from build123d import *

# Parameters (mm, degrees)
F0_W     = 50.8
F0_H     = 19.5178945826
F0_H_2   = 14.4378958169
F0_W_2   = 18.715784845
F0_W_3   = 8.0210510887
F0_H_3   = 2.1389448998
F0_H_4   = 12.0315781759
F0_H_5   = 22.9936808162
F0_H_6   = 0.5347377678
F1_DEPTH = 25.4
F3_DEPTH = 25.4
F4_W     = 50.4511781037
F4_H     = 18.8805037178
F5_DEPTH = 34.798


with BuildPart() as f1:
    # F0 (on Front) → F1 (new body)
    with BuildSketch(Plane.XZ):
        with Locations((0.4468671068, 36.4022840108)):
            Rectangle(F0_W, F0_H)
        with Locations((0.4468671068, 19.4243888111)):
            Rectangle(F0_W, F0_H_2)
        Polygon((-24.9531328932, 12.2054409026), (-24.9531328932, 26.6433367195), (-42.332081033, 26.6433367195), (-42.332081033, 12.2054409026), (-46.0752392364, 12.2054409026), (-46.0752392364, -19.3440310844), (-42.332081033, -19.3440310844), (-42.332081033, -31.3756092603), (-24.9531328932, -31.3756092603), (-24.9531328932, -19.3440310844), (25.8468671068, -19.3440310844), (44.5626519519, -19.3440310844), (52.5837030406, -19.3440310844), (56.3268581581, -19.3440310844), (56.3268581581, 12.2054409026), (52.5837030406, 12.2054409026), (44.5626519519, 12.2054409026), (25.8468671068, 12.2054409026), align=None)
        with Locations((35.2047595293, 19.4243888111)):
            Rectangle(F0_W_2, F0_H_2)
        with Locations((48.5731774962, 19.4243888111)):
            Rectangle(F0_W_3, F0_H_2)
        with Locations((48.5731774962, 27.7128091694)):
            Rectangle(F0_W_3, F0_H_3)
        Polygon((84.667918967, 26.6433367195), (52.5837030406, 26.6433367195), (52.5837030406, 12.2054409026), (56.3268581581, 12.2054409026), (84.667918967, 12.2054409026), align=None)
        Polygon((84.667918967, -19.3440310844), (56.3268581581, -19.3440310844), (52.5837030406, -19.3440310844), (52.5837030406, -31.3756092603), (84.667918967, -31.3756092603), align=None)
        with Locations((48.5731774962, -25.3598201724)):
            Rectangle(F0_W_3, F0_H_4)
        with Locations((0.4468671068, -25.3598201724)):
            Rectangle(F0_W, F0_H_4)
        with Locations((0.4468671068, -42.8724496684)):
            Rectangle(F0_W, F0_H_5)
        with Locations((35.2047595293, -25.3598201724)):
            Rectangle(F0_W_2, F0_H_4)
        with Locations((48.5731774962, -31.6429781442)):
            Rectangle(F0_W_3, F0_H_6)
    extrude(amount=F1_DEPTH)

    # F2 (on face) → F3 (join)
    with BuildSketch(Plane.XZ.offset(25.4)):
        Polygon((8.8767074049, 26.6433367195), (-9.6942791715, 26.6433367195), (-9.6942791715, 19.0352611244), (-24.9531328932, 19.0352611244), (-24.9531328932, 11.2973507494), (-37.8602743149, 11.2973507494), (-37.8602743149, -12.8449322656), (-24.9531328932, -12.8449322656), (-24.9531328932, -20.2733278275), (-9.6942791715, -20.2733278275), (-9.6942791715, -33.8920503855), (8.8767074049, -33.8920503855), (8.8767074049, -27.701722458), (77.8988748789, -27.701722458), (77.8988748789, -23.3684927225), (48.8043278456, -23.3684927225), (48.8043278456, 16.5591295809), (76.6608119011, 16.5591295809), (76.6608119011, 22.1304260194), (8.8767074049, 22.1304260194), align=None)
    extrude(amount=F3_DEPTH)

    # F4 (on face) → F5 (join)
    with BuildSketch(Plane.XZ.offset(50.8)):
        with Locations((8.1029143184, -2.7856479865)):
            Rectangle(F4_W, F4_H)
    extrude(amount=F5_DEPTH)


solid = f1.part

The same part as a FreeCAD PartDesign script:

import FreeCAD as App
import Part
import Sketcher
from FreeCAD import Vector
Q = App.Units.Quantity

doc = App.newDocument("Part")
body = doc.addObject("PartDesign::Body", "Body")

# Sketch on XZ plane
sketch1 = body.newObject("Sketcher::SketchObject", "Sketch")
sketch1.AttachmentSupport = (doc.getObject("XZ_Plane"), [""])
sketch1.MapMode = "FlatFace"
sketch1.addGeometry([
    Part.LineSegment(Vector(-24.953133, 46.161231, 0), Vector(-24.953133, 26.643337, 0)),  # 0
    Part.LineSegment(Vector(-24.953133, 26.643337, 0), Vector(-42.332081, 26.643337, 0)),  # 1
    Part.LineSegment(Vector(-42.332081, 26.643337, 0), Vector(-42.332081, 12.205441, 0)),  # 2
    Part.LineSegment(Vector(-42.332081, 12.205441, 0), Vector(-46.075239, 12.205441, 0)),  # 3
    Part.LineSegment(Vector(-46.075239, 12.205441, 0), Vector(-46.075239, -19.344031, 0)),  # 4
    Part.LineSegment(Vector(-46.075239, -19.344031, 0), Vector(-42.332081, -19.344031, 0)),  # 5
    Part.LineSegment(Vector(-42.332081, -19.344031, 0), Vector(-42.332081, -31.375609, 0)),  # 6
    Part.LineSegment(Vector(-42.332081, -31.375609, 0), Vector(-24.953133, -31.375609, 0)),  # 7
    Part.LineSegment(Vector(-24.953133, -31.375609, 0), Vector(-24.953133, -54.36929, 0)),  # 8
    Part.LineSegment(Vector(-24.953133, -54.36929, 0), Vector(25.846867, -54.36929, 0)),  # 9
    Part.LineSegment(Vector(25.846867, -54.36929, 0), Vector(25.846867, -31.375609, 0)),  # 10
    Part.LineSegment(Vector(25.846867, -31.375609, 0), Vector(44.562652, -31.375609, 0)),  # 11
    Part.LineSegment(Vector(44.562652, -31.375609, 0), Vector(44.562652, -31.910347, 0)),  # 12
    Part.LineSegment(Vector(44.562652, -31.910347, 0), Vector(52.583703, -31.910347, 0)),  # 13
    Part.LineSegment(Vector(52.583703, -31.910347, 0), Vector(52.583703, -31.375609, 0)),  # 14
    Part.LineSegment(Vector(52.583703, -31.375609, 0), Vector(84.667919, -31.375609, 0)),  # 15
    Part.LineSegment(Vector(84.667919, -31.375609, 0), Vector(84.667919, -19.344031, 0)),  # 16
    Part.LineSegment(Vector(84.667919, -19.344031, 0), Vector(56.326858, -19.344031, 0)),  # 17
    Part.LineSegment(Vector(56.326858, -19.344031, 0), Vector(56.326858, 12.205441, 0)),  # 18
    Part.LineSegment(Vector(56.326858, 12.205441, 0), Vector(84.667919, 12.205441, 0)),  # 19
    Part.LineSegment(Vector(84.667919, 12.205441, 0), Vector(84.667919, 26.643337, 0)),  # 20
    Part.LineSegment(Vector(84.667919, 26.643337, 0), Vector(52.583703, 26.643337, 0)),  # 21
    Part.LineSegment(Vector(52.583703, 26.643337, 0), Vector(52.583703, 28.782282, 0)),  # 22
    Part.LineSegment(Vector(52.583703, 28.782282, 0), Vector(44.562652, 28.782282, 0)),  # 23
    Part.LineSegment(Vector(44.562652, 28.782282, 0), Vector(44.562652, 26.643337, 0)),  # 24
    Part.LineSegment(Vector(44.562652, 26.643337, 0), Vector(25.846867, 26.643337, 0)),  # 25
    Part.LineSegment(Vector(25.846867, 26.643337, 0), Vector(25.846867, 46.161231, 0)),  # 26
    Part.LineSegment(Vector(25.846867, 46.161231, 0), Vector(-24.953133, 46.161231, 0)),  # 27
], False)
sketch1.addConstraint([
    Sketcher.Constraint("Coincident", 0, 2, 1, 1),
    Sketcher.Constraint("Coincident", 1, 2, 2, 1),
    Sketcher.Constraint("Coincident", 2, 2, 3, 1),
    Sketcher.Constraint("Coincident", 3, 2, 4, 1),
    Sketcher.Constraint("Coincident", 4, 2, 5, 1),
    Sketcher.Constraint("Coincident", 5, 2, 6, 1),
    Sketcher.Constraint("Coincident", 6, 2, 7, 1),
    Sketcher.Constraint("Coincident", 7, 2, 8, 1),
    Sketcher.Constraint("Coincident", 8, 2, 9, 1),
    Sketcher.Constraint("Coincident", 9, 2, 10, 1),
    Sketcher.Constraint("Coincident", 10, 2, 11, 1),
    Sketcher.Constraint("Coincident", 11, 2, 12, 1),
    Sketcher.Constraint("Coincident", 12, 2, 13, 1),
    Sketcher.Constraint("Coincident", 13, 2, 14, 1),
    Sketcher.Constraint("Coincident", 14, 2, 15, 1),
    Sketcher.Constraint("Coincident", 15, 2, 16, 1),
    Sketcher.Constraint("Coincident", 16, 2, 17, 1),
    Sketcher.Constraint("Coincident", 17, 2, 18, 1),
    Sketcher.Constraint("Coincident", 18, 2, 19, 1),
    Sketcher.Constraint("Coincident", 19, 2, 20, 1),
    Sketcher.Constraint("Coincident", 20, 2, 21, 1),
    Sketcher.Constraint("Coincident", 21, 2, 22, 1),
    Sketcher.Constraint("Coincident", 22, 2, 23, 1),
    Sketcher.Constraint("Coincident", 23, 2, 24, 1),
    Sketcher.Constraint("Coincident", 24, 2, 25, 1),
    Sketcher.Constraint("Coincident", 25, 2, 26, 1),
    Sketcher.Constraint("Coincident", 26, 2, 27, 1),
    Sketcher.Constraint("Coincident", 27, 2, 0, 1),
    Sketcher.Constraint("Vertical", 0),
    Sketcher.Constraint("Horizontal", 1),
    Sketcher.Constraint("Vertical", 2),
    Sketcher.Constraint("Horizontal", 3),
    Sketcher.Constraint("Vertical", 4),
    Sketcher.Constraint("Horizontal", 5),
    Sketcher.Constraint("Vertical", 6),
    Sketcher.Constraint("Horizontal", 7),
    Sketcher.Constraint("Vertical", 8),
    Sketcher.Constraint("Horizontal", 9),
    Sketcher.Constraint("Vertical", 10),
    Sketcher.Constraint("Horizontal", 11),
    Sketcher.Constraint("Vertical", 12),
    Sketcher.Constraint("Horizontal", 13),
    Sketcher.Constraint("Vertical", 14),
    Sketcher.Constraint("Horizontal", 15),
    Sketcher.Constraint("Vertical", 16),
    Sketcher.Constraint("Horizontal", 17),
    Sketcher.Constraint("Vertical", 18),
    Sketcher.Constraint("Horizontal", 19),
    Sketcher.Constraint("Vertical", 20),
    Sketcher.Constraint("Horizontal", 21),
    Sketcher.Constraint("Vertical", 22),
    Sketcher.Constraint("Horizontal", 23),
    Sketcher.Constraint("Vertical", 24),
    Sketcher.Constraint("Horizontal", 25),
    Sketcher.Constraint("Vertical", 26),
    Sketcher.Constraint("Horizontal", 27),
    Sketcher.Constraint("Horizontal", 7, 2, 10, 2),
    Sketcher.Constraint("Horizontal", 11, 2, 14, 2),
    Sketcher.Constraint("Horizontal", 5, 2, 16, 2),
    Sketcher.Constraint("Horizontal", 3, 2, 18, 2),
    Sketcher.Constraint("Horizontal", 1, 2, 20, 2),
    Sketcher.Constraint("Horizontal", 21, 2, 24, 2),
    Sketcher.Constraint("Vertical", 2, 2, 5, 2),
    Sketcher.Constraint("Vertical", 0, 2, 7, 2),
    Sketcher.Constraint("Vertical", 16, 2, 19, 2),
    Sketcher.Constraint("Vertical", 14, 2, 21, 2),
    Sketcher.Constraint("Vertical", 12, 2, 23, 2),
    Sketcher.Constraint("Vertical", 10, 2, 25, 2),
    Sketcher.Constraint("DistanceX", 9, 1, 9, 2, Q("2 in")),
    Sketcher.Constraint("DistanceX", 1, 2, 1, 1, Q("17.378948 mm")),
    Sketcher.Constraint("DistanceX", 3, 2, 3, 1, Q("3.743158 mm")),
    Sketcher.Constraint("DistanceX", 13, 1, 13, 2, Q("8.021051 mm")),
    Sketcher.Constraint("DistanceX", 17, 2, 17, 1, Q("28.341061 mm")),
    Sketcher.Constraint("DistanceY", 4, 2, 4, 1, Q("31.549472 mm")),
    Sketcher.Constraint("DistanceY", 6, 2, 6, 1, Q("12.031578 mm")),
    Sketcher.Constraint("DistanceY", 8, 2, 8, 1, Q("22.993681 mm")),
    Sketcher.Constraint("DistanceX", 11, 1, 11, 2, Q("18.715785 mm")),
    Sketcher.Constraint("DistanceX", 15, 1, 15, 2, Q("32.084216 mm")),
    Sketcher.Constraint("DistanceY", 0, 2, 0, 1, Q("19.517895 mm")),
    Sketcher.Constraint("DistanceY", 2, 2, 2, 1, Q("14.437896 mm")),
    Sketcher.Constraint("DistanceY", 12, 2, 12, 1, Q("0.534738 mm")),
    Sketcher.Constraint("DistanceY", 22, 1, 22, 2, Q("2.138945 mm")),
    Sketcher.Constraint("DistanceX", 1, 2, -1, 1, Q("42.332081 mm")),
    Sketcher.Constraint("DistanceY", -1, 1, 2, 2, Q("12.205441 mm")),
])
pad1 = body.newObject("PartDesign::Pad", "Pad")
pad1.Profile = sketch1
pad1.Length = Q("1 in")

# Sketch on XZ plane
sketch2 = body.newObject("Sketcher::SketchObject", "Sketch001")
sketch2.AttachmentSupport = (doc.getObject("XZ_Plane"), [""])
sketch2.MapMode = "FlatFace"
sketch2.AttachmentOffset = App.Placement(Vector(0, 0, 1 * 25.4), App.Rotation())
sketch2.addGeometry([
    Part.LineSegment(Vector(8.876707, 26.643337, 0), Vector(-9.694279, 26.643337, 0)),  # 0
    Part.LineSegment(Vector(-9.694279, 26.643337, 0), Vector(-9.694279, 19.035261, 0)),  # 1
    Part.LineSegment(Vector(-9.694279, 19.035261, 0), Vector(-24.953133, 19.035261, 0)),  # 2
    Part.LineSegment(Vector(-24.953133, 19.035261, 0), Vector(-24.953133, 11.297351, 0)),  # 3
    Part.LineSegment(Vector(-24.953133, 11.297351, 0), Vector(-37.860274, 11.297351, 0)),  # 4
    Part.LineSegment(Vector(-37.860274, 11.297351, 0), Vector(-37.860274, -12.844932, 0)),  # 5
    Part.LineSegment(Vector(-37.860274, -12.844932, 0), Vector(-24.953133, -12.844932, 0)),  # 6
    Part.LineSegment(Vector(-24.953133, -12.844932, 0), Vector(-24.953133, -20.273328, 0)),  # 7
    Part.LineSegment(Vector(-24.953133, -20.273328, 0), Vector(-9.694279, -20.273328, 0)),  # 8
    Part.LineSegment(Vector(-9.694279, -20.273328, 0), Vector(-9.694279, -33.89205, 0)),  # 9
    Part.LineSegment(Vector(-9.694279, -33.89205, 0), Vector(8.876707, -33.89205, 0)),  # 10
    Part.LineSegment(Vector(8.876707, -33.89205, 0), Vector(8.876707, -27.701722, 0)),  # 11
    Part.LineSegment(Vector(8.876707, -27.701722, 0), Vector(77.898875, -27.701722, 0)),  # 12
    Part.LineSegment(Vector(77.898875, -27.701722, 0), Vector(77.898875, -23.368493, 0)),  # 13
    Part.LineSegment(Vector(77.898875, -23.368493, 0), Vector(48.804328, -23.368493, 0)),  # 14
    Part.LineSegment(Vector(48.804328, -23.368493, 0), Vector(48.804328, 16.55913, 0)),  # 15
    Part.LineSegment(Vector(48.804328, 16.55913, 0), Vector(76.660812, 16.55913, 0)),  # 16
    Part.LineSegment(Vector(76.660812, 16.55913, 0), Vector(76.660812, 22.130426, 0)),  # 17
    Part.LineSegment(Vector(76.660812, 22.130426, 0), Vector(8.876707, 22.130426, 0)),  # 18
    Part.LineSegment(Vector(8.876707, 22.130426, 0), Vector(8.876707, 26.643337, 0)),  # 19
], False)
sketch2.addConstraint([
    Sketcher.Constraint("Coincident", 0, 2, 1, 1),
    Sketcher.Constraint("Coincident", 1, 2, 2, 1),
    Sketcher.Constraint("Coincident", 2, 2, 3, 1),
    Sketcher.Constraint("Coincident", 3, 2, 4, 1),
    Sketcher.Constraint("Coincident", 4, 2, 5, 1),
    Sketcher.Constraint("Coincident", 5, 2, 6, 1),
    Sketcher.Constraint("Coincident", 6, 2, 7, 1),
    Sketcher.Constraint("Coincident", 7, 2, 8, 1),
    Sketcher.Constraint("Coincident", 8, 2, 9, 1),
    Sketcher.Constraint("Coincident", 9, 2, 10, 1),
    Sketcher.Constraint("Coincident", 10, 2, 11, 1),
    Sketcher.Constraint("Coincident", 11, 2, 12, 1),
    Sketcher.Constraint("Coincident", 12, 2, 13, 1),
    Sketcher.Constraint("Coincident", 13, 2, 14, 1),
    Sketcher.Constraint("Coincident", 14, 2, 15, 1),
    Sketcher.Constraint("Coincident", 15, 2, 16, 1),
    Sketcher.Constraint("Coincident", 16, 2, 17, 1),
    Sketcher.Constraint("Coincident", 17, 2, 18, 1),
    Sketcher.Constraint("Coincident", 18, 2, 19, 1),
    Sketcher.Constraint("Coincident", 19, 2, 0, 1),
    Sketcher.Constraint("Horizontal", 0),
    Sketcher.Constraint("Vertical", 1),
    Sketcher.Constraint("Horizontal", 2),
    Sketcher.Constraint("Vertical", 3),
    Sketcher.Constraint("Horizontal", 4),
    Sketcher.Constraint("Vertical", 5),
    Sketcher.Constraint("Horizontal", 6),
    Sketcher.Constraint("Vertical", 7),
    Sketcher.Constraint("Horizontal", 8),
    Sketcher.Constraint("Vertical", 9),
    Sketcher.Constraint("Horizontal", 10),
    Sketcher.Constraint("Vertical", 11),
    Sketcher.Constraint("Horizontal", 12),
    Sketcher.Constraint("Vertical", 13),
    Sketcher.Constraint("Horizontal", 14),
    Sketcher.Constraint("Vertical", 15),
    Sketcher.Constraint("Horizontal", 16),
    Sketcher.Constraint("Vertical", 17),
    Sketcher.Constraint("Horizontal", 18),
    Sketcher.Constraint("Vertical", 19),
    Sketcher.Constraint("Vertical", 3, 2, 6, 2),
    Sketcher.Constraint("Vertical", 1, 2, 8, 2),
    Sketcher.Constraint("Vertical", 11, 2, 18, 2),
    Sketcher.Constraint("DistanceX", 4, 2, 4, 1, Q("12.907141 mm")),
    Sketcher.Constraint("DistanceY", 3, 2, 3, 1, Q("7.73791 mm")),
    Sketcher.Constraint("DistanceY", 13, 1, 13, 2, Q("4.33323 mm")),
    Sketcher.Constraint("DistanceY", 19, 1, 19, 2, Q("4.512911 mm")),
    Sketcher.Constraint("DistanceY", 9, 2, 3, 2, Q("45.189401 mm")),
    Sketcher.Constraint("DistanceX", 0, 2, 0, 1, Q("18.570987 mm")),
    Sketcher.Constraint("DistanceX", 2, 2, 2, 1, Q("15.258854 mm")),
    Sketcher.Constraint("DistanceX", 12, 1, 12, 2, Q("69.022167 mm")),
    Sketcher.Constraint("DistanceX", 14, 2, 14, 1, Q("29.094547 mm")),
    Sketcher.Constraint("DistanceX", 16, 1, 16, 2, Q("27.856484 mm")),
    Sketcher.Constraint("DistanceY", 1, 2, 1, 1, Q("7.608076 mm")),
    Sketcher.Constraint("DistanceY", 5, 2, 5, 1, Q("24.142283 mm")),
    Sketcher.Constraint("DistanceY", 7, 2, 7, 1, Q("7.428396 mm")),
    Sketcher.Constraint("DistanceY", 11, 1, 11, 2, Q("6.190328 mm")),
    Sketcher.Constraint("DistanceY", 15, 1, 15, 2, Q("39.927622 mm")),
    Sketcher.Constraint("DistanceX", 0, 2, -1, 1, Q("9.694279 mm")),
    Sketcher.Constraint("DistanceY", -1, 1, 1, 2, Q("19.035261 mm")),
])
pad2 = body.newObject("PartDesign::Pad", "Pad001")
pad2.Profile = sketch2
pad2.Length = Q("1 in")

# Sketch on XZ plane
sketch3 = body.newObject("Sketcher::SketchObject", "Sketch002")
sketch3.AttachmentSupport = (doc.getObject("XZ_Plane"), [""])
sketch3.MapMode = "FlatFace"
sketch3.AttachmentOffset = App.Placement(Vector(0, 0, 2 * 25.4), App.Rotation())
sketch3.addGeometry([
    Part.LineSegment(Vector(-17.122675, 6.654604, 0), Vector(-17.122675, -12.2259, 0)),
    Part.LineSegment(Vector(-17.122675, -12.2259, 0), Vector(33.328503, -12.2259, 0)),
    Part.LineSegment(Vector(33.328503, -12.2259, 0), Vector(33.328503, 6.654604, 0)),
    Part.LineSegment(Vector(33.328503, 6.654604, 0), Vector(-17.122675, 6.654604, 0)),
], False)
sketch3.addConstraint([
    Sketcher.Constraint("Coincident", 0, 2, 1, 1),
    Sketcher.Constraint("Coincident", 1, 2, 2, 1),
    Sketcher.Constraint("Coincident", 2, 2, 3, 1),
    Sketcher.Constraint("Coincident", 3, 2, 0, 1),
    Sketcher.Constraint("Vertical", 0),
    Sketcher.Constraint("Horizontal", 1),
    Sketcher.Constraint("Vertical", 2),
    Sketcher.Constraint("Horizontal", 3),
    Sketcher.Constraint("DistanceX", 1, 1, 1, 2, Q("50.451178 mm")),
    Sketcher.Constraint("DistanceY", 0, 2, -1, 1, Q("12.2259 mm")),
    Sketcher.Constraint("DistanceY", 0, 2, 0, 1, Q("18.880504 mm")),
    Sketcher.Constraint("DistanceX", 0, 2, -1, 1, Q("17.122675 mm")),
])
pad3 = body.newObject("PartDesign::Pad", "Pad002")
pad3.Profile = sketch3
pad3.Length = Q("1.37 in")

doc.recompute()
